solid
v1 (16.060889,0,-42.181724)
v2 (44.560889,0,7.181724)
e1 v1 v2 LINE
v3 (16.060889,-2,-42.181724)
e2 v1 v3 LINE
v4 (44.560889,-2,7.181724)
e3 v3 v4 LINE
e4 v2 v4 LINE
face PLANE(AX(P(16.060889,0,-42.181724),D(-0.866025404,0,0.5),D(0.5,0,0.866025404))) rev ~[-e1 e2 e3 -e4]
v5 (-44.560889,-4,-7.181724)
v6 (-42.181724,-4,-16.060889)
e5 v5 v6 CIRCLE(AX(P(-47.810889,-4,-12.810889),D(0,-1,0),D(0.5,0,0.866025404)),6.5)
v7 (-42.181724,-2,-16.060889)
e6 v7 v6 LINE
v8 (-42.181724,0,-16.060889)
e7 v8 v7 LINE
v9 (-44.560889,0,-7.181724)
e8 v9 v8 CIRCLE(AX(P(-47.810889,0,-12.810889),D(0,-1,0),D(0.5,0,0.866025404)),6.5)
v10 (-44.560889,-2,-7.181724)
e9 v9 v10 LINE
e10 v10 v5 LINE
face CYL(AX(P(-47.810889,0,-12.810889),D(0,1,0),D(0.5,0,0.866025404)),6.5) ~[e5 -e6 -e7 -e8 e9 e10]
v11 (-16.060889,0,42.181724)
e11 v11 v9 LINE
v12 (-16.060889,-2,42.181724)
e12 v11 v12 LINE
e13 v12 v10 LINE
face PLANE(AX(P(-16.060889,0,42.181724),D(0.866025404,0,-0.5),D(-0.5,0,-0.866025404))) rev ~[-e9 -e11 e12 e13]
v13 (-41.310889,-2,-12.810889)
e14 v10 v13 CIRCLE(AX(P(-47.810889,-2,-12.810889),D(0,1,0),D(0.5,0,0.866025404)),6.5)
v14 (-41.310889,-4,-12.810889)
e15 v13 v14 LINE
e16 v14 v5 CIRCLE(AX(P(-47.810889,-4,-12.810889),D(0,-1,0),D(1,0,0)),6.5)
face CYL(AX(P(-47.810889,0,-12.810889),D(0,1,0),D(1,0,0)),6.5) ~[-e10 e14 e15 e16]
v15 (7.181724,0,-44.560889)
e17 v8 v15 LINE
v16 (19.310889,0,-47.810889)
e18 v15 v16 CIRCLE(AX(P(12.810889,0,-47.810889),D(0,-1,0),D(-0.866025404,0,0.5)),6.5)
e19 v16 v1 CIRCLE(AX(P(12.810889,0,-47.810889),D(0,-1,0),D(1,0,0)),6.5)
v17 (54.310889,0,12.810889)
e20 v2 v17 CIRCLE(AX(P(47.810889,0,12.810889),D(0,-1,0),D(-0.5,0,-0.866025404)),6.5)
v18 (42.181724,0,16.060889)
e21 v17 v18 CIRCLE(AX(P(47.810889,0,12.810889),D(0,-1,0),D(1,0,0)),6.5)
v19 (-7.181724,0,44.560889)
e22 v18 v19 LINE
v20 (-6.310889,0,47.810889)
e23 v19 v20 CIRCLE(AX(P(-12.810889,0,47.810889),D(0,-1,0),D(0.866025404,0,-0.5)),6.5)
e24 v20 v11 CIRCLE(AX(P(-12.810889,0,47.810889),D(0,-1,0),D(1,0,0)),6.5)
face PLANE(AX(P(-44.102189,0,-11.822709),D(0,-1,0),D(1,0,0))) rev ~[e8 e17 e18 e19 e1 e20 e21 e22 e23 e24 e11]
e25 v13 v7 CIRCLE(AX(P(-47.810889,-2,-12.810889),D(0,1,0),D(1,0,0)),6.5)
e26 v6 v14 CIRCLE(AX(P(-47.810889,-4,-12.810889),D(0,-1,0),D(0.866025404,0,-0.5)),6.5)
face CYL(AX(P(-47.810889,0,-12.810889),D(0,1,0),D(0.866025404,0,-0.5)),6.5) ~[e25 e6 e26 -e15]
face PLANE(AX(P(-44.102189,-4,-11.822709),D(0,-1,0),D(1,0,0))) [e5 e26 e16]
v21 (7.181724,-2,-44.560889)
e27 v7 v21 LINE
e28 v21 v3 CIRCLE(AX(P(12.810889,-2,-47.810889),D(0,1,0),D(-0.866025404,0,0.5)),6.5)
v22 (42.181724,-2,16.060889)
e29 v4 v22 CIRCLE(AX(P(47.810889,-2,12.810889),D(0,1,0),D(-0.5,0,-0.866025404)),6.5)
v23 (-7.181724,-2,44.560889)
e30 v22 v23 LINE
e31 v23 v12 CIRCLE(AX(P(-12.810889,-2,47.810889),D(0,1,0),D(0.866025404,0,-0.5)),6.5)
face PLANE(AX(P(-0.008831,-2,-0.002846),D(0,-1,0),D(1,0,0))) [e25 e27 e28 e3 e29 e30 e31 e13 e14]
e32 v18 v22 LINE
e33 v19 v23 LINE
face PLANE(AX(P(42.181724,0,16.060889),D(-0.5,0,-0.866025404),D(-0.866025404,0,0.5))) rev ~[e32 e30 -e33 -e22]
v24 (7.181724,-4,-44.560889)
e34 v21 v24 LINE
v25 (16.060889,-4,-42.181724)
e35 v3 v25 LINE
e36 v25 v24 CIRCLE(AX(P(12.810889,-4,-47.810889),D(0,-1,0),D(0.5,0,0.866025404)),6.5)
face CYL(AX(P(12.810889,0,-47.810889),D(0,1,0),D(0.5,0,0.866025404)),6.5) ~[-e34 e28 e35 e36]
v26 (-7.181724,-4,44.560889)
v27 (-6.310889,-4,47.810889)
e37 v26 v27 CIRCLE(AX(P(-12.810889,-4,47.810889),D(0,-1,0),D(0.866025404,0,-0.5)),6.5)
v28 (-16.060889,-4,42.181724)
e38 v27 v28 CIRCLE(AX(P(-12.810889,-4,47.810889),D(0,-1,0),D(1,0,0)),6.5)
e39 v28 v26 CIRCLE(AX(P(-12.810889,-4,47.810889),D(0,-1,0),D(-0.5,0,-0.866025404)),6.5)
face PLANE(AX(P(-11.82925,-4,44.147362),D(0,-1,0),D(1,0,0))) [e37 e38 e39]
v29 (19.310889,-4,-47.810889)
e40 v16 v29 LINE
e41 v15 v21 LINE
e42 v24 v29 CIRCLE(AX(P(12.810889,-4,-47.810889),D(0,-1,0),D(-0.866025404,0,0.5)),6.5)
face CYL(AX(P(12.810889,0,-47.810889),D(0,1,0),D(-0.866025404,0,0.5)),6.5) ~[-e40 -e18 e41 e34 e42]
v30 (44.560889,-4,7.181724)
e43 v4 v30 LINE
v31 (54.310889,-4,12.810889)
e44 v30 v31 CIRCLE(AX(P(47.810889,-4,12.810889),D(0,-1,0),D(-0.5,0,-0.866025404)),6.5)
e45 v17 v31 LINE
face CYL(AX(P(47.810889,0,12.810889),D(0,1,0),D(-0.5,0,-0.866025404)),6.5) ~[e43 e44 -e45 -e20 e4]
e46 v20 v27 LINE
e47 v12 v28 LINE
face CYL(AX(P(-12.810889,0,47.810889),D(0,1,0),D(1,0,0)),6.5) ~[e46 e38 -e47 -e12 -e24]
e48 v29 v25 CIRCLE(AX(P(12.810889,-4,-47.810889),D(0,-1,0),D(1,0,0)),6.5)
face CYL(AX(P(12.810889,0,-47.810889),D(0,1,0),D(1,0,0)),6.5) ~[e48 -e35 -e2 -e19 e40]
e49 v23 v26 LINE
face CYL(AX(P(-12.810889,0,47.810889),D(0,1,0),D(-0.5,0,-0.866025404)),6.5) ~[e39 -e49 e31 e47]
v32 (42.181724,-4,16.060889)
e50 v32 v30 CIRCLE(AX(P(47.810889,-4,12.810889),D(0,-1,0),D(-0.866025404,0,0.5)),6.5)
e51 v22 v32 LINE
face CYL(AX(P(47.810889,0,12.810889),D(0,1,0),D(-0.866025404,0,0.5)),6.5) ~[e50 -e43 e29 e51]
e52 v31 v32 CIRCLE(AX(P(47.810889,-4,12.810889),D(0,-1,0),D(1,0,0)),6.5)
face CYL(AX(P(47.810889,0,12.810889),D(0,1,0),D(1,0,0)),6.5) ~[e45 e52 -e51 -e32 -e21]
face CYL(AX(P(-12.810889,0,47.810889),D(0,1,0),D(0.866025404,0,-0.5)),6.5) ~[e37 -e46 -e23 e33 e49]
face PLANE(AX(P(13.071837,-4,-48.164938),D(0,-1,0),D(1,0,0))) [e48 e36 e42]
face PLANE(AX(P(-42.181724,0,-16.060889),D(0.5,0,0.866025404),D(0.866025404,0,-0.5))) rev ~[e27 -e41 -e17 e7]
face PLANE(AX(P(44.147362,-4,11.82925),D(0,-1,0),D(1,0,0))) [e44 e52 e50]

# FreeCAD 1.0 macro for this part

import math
import FreeCAD as App
import Part
import Sketcher
from FreeCAD import Vector
Q = App.Units.Quantity

doc = App.newDocument("Part")
params = doc.addObject("Spreadsheet::Sheet", "Params")
for row, (alias, value) in enumerate([
    ("sketch1_radius", "6.5 mm"),
    ("sketch1_length", "57 mm"),
    ("sketch1_width", "3.25 mm"),
    ("sketch1_height", "3.25 mm"),
    ("sketch1_width2", "3.25 mm"),
    ("pad1_length", "2 mm"),
    ("sketch2_radius", "6.5 mm"),
    ("sketch2_width", "3.25 mm"),
    ("sketch2_height", "3.25 mm"),
    ("pad2_length", "4 mm"),
], start=1):
    params.set(f"A{row}", alias)
    params.set(f"B{row}", "=" + value)
    params.setAlias(f"B{row}", alias)

body = doc.addObject("PartDesign::Body", "Body")

# Sketch on XZ plane
sketch1 = doc.addObject("Sketcher::SketchObject", "Sketch")
body.addObject(sketch1)
sketch1.AttachmentSupport = (doc.XZ_Plane, [""])
sketch1.MapMode = "FlatFace"
sketch1.addGeometry(Part.ArcOfCircle(Part.Circle(Vector(12.8, -47.8, 0), Vector(0, 0, 1), 6.5), math.radians(60), math.radians(150)), False)
sketch1.addGeometry(Part.LineSegment(Vector(16.1, -42.2, 0), Vector(44.6, 7.2, 0)), False)
sketch1.addGeometry(Part.ArcOfCircle(Part.Circle(Vector(47.8, 12.8, 0), Vector(0, 0, 1), 6.5), math.radians(150), math.radians(240)), False)
sketch1.addGeometry(Part.LineSegment(Vector(42.2, 16.1, 0), Vector(-7.2, 44.6, 0)), False)
sketch1.addGeometry(Part.ArcOfCircle(Part.Circle(Vector(-12.8, 47.8, 0), Vector(0, 0, 1), 6.5), math.radians(-120), math.radians(-30)), False)
sketch1.addGeometry(Part.LineSegment(Vector(-16.1, 42.2, 0), Vector(-44.6, -7.2, 0)), False)
sketch1.addGeometry(Part.ArcOfCircle(Part.Circle(Vector(-47.8, -12.8, 0), Vector(0, 0, 1), 6.5), math.radians(0), math.radians(60)), False)
sketch1.addGeometry(Part.ArcOfCircle(Part.Circle(Vector(-47.8, -12.8, 0), Vector(0, 0, 1), 6.5), math.radians(-30), math.radians(0)), False)
sketch1.addGeometry(Part.LineSegment(Vector(-42.2, -16.1, 0), Vector(7.2, -44.6, 0)), False)
sketch1.addConstraint(Sketcher.Constraint("Coincident", 0, 1, 1, 1))
sketch1.addConstraint(Sketcher.Constraint("Coincident", 1, 2, 2, 2))
sketch1.addConstraint(Sketcher.Constraint("Coincident", 2, 1, 3, 1))
sketch1.addConstraint(Sketcher.Constraint("Coincident", 3, 2, 4, 2))
sketch1.addConstraint(Sketcher.Constraint("Coincident", 4, 1, 5, 1))
sketch1.addConstraint(Sketcher.Constraint("Coincident", 5, 2, 6, 2))
sketch1.addConstraint(Sketcher.Constraint("Tangent", 6, 1, 7, 2))
sketch1.addConstraint(Sketcher.Constraint("Coincident", 7, 1, 8, 1))
sketch1.addConstraint(Sketcher.Constraint("Coincident", 8, 2, 0, 2))
sketch1.addConstraint(Sketcher.Constraint("Equal", 0, 2))
sketch1.addConstraint(Sketcher.Constraint("Equal", 2, 4))
sketch1.addConstraint(Sketcher.Constraint("Equal", 4, 6))
sketch1.addConstraint(Sketcher.Constraint("Equal", 6, 7))
sketch1.addConstraint(Sketcher.Constraint("Symmetric", 0, 3, 4, 3, -1, 1))
sketch1.addConstraint(Sketcher.Constraint("Symmetric", 2, 3, 6, 3, -1, 1))
sketch1.addConstraint(Sketcher.Constraint("Perpendicular", 1, 3))
sketch1.addConstraint(Sketcher.Constraint("Perpendicular", 3, 5))
sketch1.addConstraint(Sketcher.Constraint("Perpendicular", 5, 8))
sketch1.addConstraint(Sketcher.Constraint("Horizontal", 7, 3, 6, 1))
sketch1.addConstraint(Sketcher.Constraint("Equal", 1, 3))
sketch1.addConstraint(Sketcher.Constraint("Radius", 0, 6.5))
sketch1.addConstraint(Sketcher.Constraint("Angle", 1, Q("60 deg")))
sketch1.addConstraint(Sketcher.Constraint("Distance", 1, 57.0))
sketch1.addConstraint(Sketcher.Constraint("DistanceX", 0, 3, 2, 3, 35.0))
sketch1.addConstraint(Sketcher.Constraint("DistanceY", 2, 3, 4, 3, 35.0))
sketch1.addConstraint(Sketcher.Constraint("DistanceX", 0, 3, 0, 1, 3.25))
sketch1.addConstraint(Sketcher.Constraint("DistanceY", 2, 3, 2, 1, 3.25))
sketch1.addConstraint(Sketcher.Constraint("DistanceX", 4, 1, 4, 3, 3.25))
sketch1.addConstraint(Sketcher.Constraint("DistanceY", 7, 1, 6, 1, 3.25))
sketch1.setExpression("Constraints[20]", "Params.sketch1_radius")
sketch1.setExpression("Constraints[22]", "Params.sketch1_length")
sketch1.setExpression("Constraints[25]", "Params.sketch1_width")
sketch1.setExpression("Constraints[26]", "Params.sketch1_height")
sketch1.setExpression("Constraints[27]", "Params.sketch1_width2")
pad1 = doc.addObject("PartDesign::Pad", "Pad")
body.addObject(pad1)
pad1.Profile = sketch1
pad1.setExpression("Length", "Params.pad1_length")

# Sketch on XZ plane
sketch2 = doc.addObject("Sketcher::SketchObject", "Sketch001")
body.addObject(sketch2)
sketch2.AttachmentSupport = (doc.XZ_Plane, [""])
sketch2.MapMode = "FlatFace"
sketch2.addGeometry(Part.ArcOfCircle(Part.Circle(Vector(-47.8, -12.8, 0), Vector(0, 0, 1), 6.5), math.radians(-30), math.radians(0)), False)
sketch2.addGeometry(Part.ArcOfCircle(Part.Circle(Vector(-47.8, -12.8, 0), Vector(0, 0, 1), 6.5), math.radians(0), math.radians(60)), False)
sketch2.addGeometry(Part.ArcOfCircle(Part.Circle(Vector(-47.8, -12.8, 0), Vector(0, 0, 1), 6.5), math.radians(60), math.radians(330)), False)
sketch2.addGeometry(Part.ArcOfCircle(Part.Circle(Vector(12.8, -47.8, 0), Vector(0, 0, 1), 6.5), math.radians(150), math.radians(360)), False)
sketch2.addGeometry(Part.ArcOfCircle(Part.Circle(Vector(12.8, -47.8, 0), Vector(0, 0, 1), 6.5), math.radians(0), math.radians(60)), False)
sketch2.addGeometry(Part.ArcOfCircle(Part.Circle(Vector(12.8, -47.8, 0), Vector(0, 0, 1), 6.5), math.radians(60), math.radians(150)), False)
sketch2.addGeometry(Part.ArcOfCircle(Part.Circle(Vector(47.8, 12.8, 0), Vector(0, 0, 1), 6.5), math.radians(150), math.radians(240)), False)
sketch2.addGeometry(Part.ArcOfCircle(Part.Circle(Vector(47.8, 12.8, 0), Vector(0, 0, 1), 6.5), math.radians(-120), math.radians(0)), False)
sketch2.addGeometry(Part.ArcOfCircle(Part.Circle(Vector(47.8, 12.8, 0), Vector(0, 0, 1), 6.5), math.radians(0), math.radians(150)), False)
sketch2.addGeometry(Part.ArcOfCircle(Part.Circle(Vector(-12.8, 47.8, 0), Vector(0, 0, 1), 6.5), math.radians(-120), math.radians(-30)), False)
sketch2.addGeometry(Part.ArcOfCircle(Part.Circle(Vector(-12.8, 47.8, 0), Vector(0, 0, 1), 6.5), math.radians(-30), math.radians(0)), False)
sketch2.addGeometry(Part.ArcOfCircle(Part.Circle(Vector(-12.8, 47.8, 0), Vector(0, 0, 1), 6.5), math.radians(0), math.radians(240)), False)
sketch2.addConstraint(Sketcher.Constraint("Tangent", 0, 2, 1, 1))
sketch2.addConstraint(Sketcher.Constraint("Tangent", 1, 2, 2, 1))
sketch2.addConstraint(Sketcher.Constraint("Tangent", 2, 2, 0, 1))
sketch2.addConstraint(Sketcher.Constraint("Tangent", 3, 2, 4, 1))
sketch2.addConstraint(Sketcher.Constraint("Tangent", 4, 2, 5, 1))
sketch2.addConstraint(Sketcher.Constraint("Tangent", 5, 2, 3, 1))
sketch2.addConstraint(Sketcher.Constraint("Tangent", 6, 2, 7, 1))
sketch2.addConstraint(Sketcher.Constraint("Tangent", 7, 2, 8, 1))
sketch2.addConstraint(Sketcher.Constraint("Tangent", 8, 2, 6, 1))
sketch2.addConstraint(Sketcher.Constraint("Tangent", 9, 2, 10, 1))
sketch2.addConstraint(Sketcher.Constraint("Tangent", 10, 2, 11, 1))
sketch2.addConstraint(Sketcher.Constraint("Tangent", 11, 2, 9, 1))
sketch2.addConstraint(Sketcher.Constraint("Equal", 2, 3))
sketch2.addConstraint(Sketcher.Constraint("Equal", 5, 6))
sketch2.addConstraint(Sketcher.Constraint("Equal", 8, 9))
sketch2.addConstraint(Sketcher.Constraint("Symmetric", 0, 3, 6, 3, -1, 1))
sketch2.addConstraint(Sketcher.Constraint("Symmetric", 3, 3, 9, 3, -1, 1))
sketch2.addConstraint(Sketcher.Constraint("Horizontal", 2, 3, 0, 2))
sketch2.addConstraint(Sketcher.Constraint("Horizontal", 5, 3, 3, 2))
sketch2.addConstraint(Sketcher.Constraint("Horizontal", 8, 3, 7, 2))
sketch2.addConstraint(Sketcher.Constraint("Horizontal", 11, 3, 10, 2))
sketch2.addConstraint(Sketcher.Constraint("Radius", 0, 6.5))
sketch2.addConstraint(Sketcher.Constraint("DistanceY", 3, 3, 0, 3, 35.0))
sketch2.addConstraint(Sketcher.Constraint("DistanceX", 3, 3, 6, 3, 35.0))
sketch2.addConstraint(Sketcher.Constraint("DistanceX", 4, 2, 6, 2, 28.5))
sketch2.addConstraint(Sketcher.Constraint("DistanceY", 8, 2, 9, 2, 28.5))
sketch2.addConstraint(Sketcher.Constraint("DistanceX", 1, 3, 1, 2, 3.25))
sketch2.addConstraint(Sketcher.Constraint("DistanceY", 2, 2, 0, 2, 3.25))
sketch2.addConstraint(Sketcher.Constraint("DistanceX", 3, 3, 4, 2, 3.25))
sketch2.addConstraint(Sketcher.Constraint("DistanceY", 5, 3, 5, 2, 3.25))
sketch2.addConstraint(Sketcher.Constraint("DistanceY", 6, 3, 8, 2, 3.25))
sketch2.addConstraint(Sketcher.Constraint("DistanceX", 11, 2, 9, 3, 3.25))
sketch2.addConstraint(Sketcher.Constraint("DistanceX", 0, 3, -1, 1, 47.810889))
sketch2.addConstraint(Sketcher.Constraint("DistanceY", 0, 3, -1, 1, 12.810889))
sketch2.setExpression("Constraints[21]", "Params.sketch2_radius")
sketch2.setExpression("Constraints[26]", "Params.sketch2_width")
sketch2.setExpression("Constraints[29]", "Params.sketch2_height")
pad2 = doc.addObject("PartDesign::Pad", "Pad001")
body.addObject(pad2)
pad2.Profile = sketch2
pad2.setExpression("Length", "Params.pad2_length")

doc.recompute()
